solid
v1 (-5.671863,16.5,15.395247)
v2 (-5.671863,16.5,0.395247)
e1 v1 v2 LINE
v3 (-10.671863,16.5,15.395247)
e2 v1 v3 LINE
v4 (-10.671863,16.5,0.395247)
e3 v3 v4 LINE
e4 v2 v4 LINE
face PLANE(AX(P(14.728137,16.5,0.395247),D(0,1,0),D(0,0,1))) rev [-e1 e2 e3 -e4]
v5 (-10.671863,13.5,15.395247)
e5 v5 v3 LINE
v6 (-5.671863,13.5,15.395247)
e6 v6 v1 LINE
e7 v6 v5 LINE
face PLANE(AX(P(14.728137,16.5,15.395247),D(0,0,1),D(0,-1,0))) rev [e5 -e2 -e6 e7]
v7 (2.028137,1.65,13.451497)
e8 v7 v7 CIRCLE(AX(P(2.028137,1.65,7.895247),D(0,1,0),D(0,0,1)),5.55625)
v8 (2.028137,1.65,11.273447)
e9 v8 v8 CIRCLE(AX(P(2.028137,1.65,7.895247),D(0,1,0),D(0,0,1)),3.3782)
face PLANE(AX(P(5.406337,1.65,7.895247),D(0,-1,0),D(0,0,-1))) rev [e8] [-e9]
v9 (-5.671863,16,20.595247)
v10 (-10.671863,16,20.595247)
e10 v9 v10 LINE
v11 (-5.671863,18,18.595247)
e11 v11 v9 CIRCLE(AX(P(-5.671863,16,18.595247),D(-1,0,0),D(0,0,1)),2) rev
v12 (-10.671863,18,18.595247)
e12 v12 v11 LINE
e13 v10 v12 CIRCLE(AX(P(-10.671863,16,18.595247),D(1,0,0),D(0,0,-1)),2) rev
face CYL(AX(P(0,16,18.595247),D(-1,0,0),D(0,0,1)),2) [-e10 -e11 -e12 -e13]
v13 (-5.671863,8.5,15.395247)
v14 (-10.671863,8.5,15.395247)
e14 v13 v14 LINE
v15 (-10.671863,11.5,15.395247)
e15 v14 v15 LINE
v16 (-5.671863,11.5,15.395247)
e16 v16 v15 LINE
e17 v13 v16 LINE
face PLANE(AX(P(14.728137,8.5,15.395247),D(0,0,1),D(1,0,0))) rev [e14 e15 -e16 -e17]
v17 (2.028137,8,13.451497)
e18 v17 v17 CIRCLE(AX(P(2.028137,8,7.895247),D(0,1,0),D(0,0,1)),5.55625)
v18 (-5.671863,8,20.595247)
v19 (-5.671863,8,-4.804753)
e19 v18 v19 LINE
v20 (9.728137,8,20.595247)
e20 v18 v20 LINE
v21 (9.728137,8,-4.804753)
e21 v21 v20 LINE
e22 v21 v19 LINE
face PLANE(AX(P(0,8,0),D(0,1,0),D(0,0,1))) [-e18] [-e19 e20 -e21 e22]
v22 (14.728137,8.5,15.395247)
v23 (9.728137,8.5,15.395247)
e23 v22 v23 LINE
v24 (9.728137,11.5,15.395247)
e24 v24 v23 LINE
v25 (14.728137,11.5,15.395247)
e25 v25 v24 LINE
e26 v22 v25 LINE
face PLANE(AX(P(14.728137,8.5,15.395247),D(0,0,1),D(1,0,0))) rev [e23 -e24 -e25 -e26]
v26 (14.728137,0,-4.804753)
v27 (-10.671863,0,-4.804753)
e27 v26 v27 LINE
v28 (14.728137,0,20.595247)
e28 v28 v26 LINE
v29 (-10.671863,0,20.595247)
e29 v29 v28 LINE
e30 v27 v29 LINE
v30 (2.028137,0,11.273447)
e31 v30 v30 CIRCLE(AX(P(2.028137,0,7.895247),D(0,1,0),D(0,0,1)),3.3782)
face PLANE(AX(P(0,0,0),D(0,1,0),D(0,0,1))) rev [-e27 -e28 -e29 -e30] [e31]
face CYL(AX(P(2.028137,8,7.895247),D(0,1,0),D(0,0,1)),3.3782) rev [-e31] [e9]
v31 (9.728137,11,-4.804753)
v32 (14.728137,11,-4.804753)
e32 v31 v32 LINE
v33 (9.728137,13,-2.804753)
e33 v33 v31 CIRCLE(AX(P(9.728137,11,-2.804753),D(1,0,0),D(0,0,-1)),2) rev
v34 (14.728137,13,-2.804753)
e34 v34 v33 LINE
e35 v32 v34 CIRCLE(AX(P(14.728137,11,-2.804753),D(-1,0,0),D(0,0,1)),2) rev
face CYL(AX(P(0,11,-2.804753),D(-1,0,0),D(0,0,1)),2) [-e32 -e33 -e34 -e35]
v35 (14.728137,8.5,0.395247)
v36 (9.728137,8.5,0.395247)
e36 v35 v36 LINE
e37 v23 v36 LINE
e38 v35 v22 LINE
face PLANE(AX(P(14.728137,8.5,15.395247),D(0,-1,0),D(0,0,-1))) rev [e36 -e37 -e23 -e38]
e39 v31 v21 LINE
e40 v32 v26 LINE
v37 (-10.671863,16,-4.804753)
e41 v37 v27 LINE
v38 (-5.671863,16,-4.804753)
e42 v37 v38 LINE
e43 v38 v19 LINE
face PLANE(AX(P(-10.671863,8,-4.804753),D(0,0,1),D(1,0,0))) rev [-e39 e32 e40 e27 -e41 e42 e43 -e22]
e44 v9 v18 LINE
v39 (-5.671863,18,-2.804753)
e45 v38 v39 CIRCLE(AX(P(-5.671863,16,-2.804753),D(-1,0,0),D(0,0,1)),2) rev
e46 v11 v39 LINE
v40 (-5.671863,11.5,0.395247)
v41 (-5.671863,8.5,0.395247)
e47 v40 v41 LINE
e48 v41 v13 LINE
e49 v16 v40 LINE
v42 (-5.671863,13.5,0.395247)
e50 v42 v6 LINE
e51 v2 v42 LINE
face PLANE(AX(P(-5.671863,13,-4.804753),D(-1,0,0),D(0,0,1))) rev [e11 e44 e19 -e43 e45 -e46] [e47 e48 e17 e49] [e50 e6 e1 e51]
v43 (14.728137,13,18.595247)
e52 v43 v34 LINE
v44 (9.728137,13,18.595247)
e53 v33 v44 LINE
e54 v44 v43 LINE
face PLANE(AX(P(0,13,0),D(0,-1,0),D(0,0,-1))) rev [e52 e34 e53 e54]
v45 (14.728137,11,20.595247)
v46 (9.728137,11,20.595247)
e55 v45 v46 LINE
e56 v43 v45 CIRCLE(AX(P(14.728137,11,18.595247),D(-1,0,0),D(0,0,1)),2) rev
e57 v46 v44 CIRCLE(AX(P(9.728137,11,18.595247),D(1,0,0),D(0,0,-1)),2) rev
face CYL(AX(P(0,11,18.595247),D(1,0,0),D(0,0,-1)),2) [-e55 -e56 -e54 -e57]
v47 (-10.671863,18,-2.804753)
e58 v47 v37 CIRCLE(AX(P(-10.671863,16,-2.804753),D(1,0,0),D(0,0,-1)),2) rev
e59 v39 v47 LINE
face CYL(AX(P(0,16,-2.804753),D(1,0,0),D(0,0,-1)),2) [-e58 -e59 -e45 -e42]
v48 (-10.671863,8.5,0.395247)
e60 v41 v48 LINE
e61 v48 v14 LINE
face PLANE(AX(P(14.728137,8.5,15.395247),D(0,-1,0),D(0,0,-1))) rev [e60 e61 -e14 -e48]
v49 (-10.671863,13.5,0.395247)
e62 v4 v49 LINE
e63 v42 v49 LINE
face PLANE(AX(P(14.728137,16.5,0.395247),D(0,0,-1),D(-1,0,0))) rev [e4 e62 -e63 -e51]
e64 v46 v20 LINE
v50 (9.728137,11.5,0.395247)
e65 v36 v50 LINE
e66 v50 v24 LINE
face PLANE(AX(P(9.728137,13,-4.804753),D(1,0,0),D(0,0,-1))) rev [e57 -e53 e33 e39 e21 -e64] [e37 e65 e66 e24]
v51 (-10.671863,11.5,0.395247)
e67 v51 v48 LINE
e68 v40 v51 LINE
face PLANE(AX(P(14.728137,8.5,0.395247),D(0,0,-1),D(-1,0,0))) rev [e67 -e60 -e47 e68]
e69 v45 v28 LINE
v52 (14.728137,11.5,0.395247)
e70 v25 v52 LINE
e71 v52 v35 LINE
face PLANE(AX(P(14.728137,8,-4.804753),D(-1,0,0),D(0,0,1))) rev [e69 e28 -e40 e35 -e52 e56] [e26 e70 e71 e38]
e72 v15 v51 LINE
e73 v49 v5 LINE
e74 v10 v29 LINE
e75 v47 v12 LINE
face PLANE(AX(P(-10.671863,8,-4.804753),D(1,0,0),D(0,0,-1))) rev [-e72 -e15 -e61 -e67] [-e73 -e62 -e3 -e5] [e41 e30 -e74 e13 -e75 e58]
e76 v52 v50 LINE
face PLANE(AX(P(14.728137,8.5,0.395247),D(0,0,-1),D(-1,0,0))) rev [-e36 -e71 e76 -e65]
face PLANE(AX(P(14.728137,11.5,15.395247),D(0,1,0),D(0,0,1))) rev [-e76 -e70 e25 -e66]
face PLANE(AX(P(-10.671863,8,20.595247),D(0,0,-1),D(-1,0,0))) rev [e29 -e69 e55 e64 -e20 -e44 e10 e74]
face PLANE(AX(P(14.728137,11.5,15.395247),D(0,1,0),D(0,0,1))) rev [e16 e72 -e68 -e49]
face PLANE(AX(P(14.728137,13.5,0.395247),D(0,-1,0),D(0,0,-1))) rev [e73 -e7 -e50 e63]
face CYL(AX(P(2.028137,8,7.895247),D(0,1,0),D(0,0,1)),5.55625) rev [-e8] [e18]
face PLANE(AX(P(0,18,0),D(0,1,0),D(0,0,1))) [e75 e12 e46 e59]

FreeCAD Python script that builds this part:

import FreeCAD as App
import Part
import Sketcher


def edges_at(feature, points):
    """Names of the edges that pass closest to the given points."""
    edges = feature.Shape.Edges
    near = lambda p: min(range(len(edges)), key=lambda i: edges[i].distToShape(Part.Vertex(*p))[0])
    return sorted({f"Edge{near(p) + 1}" for p in points})


def add_polygon(sketch, points):
    """Adds a closed chain of lines whose ends are joined by coincident constraints."""
    first, n = sketch.GeometryCount, len(points)
    for a, b in zip(points, points[1:] + points[:1]):
        sketch.addGeometry(Part.LineSegment(App.Vector(*a, 0), App.Vector(*b, 0)), False)
    for i in range(n):
        sketch.addConstraint(Sketcher.Constraint("Coincident", first + i, 2, first + (i + 1) % n, 1))

doc = App.newDocument("Part")
body = doc.addObject("PartDesign::Body", "Body")

sketch1 = body.newObject("Sketcher::SketchObject", "Sketch")
sketch1.AttachmentSupport = (doc.getObject("XZ_Plane"), [""])
sketch1.MapMode = "FlatFace"
add_polygon(sketch1, [(-11, -5), (-11, 21), (15, 21), (15, -5)])
sketch1.addConstraint(Sketcher.Constraint("Vertical", 0))
sketch1.addConstraint(Sketcher.Constraint("Horizontal", 1))
sketch1.addConstraint(Sketcher.Constraint("Vertical", 2))
sketch1.addConstraint(Sketcher.Constraint("Horizontal", 3))
sketch1.addConstraint(Sketcher.Constraint("Equal", 3, 0))
sketch1.addConstraint(Sketcher.Constraint("DistanceX", 1, 1, 1, 2, 25.4))
sketch1.addConstraint(Sketcher.Constraint("DistanceX", 0, 2, -1, 1, 10.671863))
sketch1.addConstraint(Sketcher.Constraint("DistanceY", -1, 1, 0, 2, 20.595247))
pad1 = body.newObject("PartDesign::Pad", "Pad")
pad1.Profile = sketch1
pad1.Length = 8
pad1.Reversed = True

sketch2 = body.newObject("Sketcher::SketchObject", "Sketch001")
sketch2.AttachmentSupport = (doc.getObject("XZ_Plane"), [""])
sketch2.MapMode = "FlatFace"
sketch2.AttachmentOffset = App.Placement(App.Vector(0, 0, -8), App.Rotation())
add_polygon(sketch2, [(-10.7, -4.8), (-10.7, 20.6), (-5.7, 20.6), (-5.7, -4.8)])
add_polygon(sketch2, [(9.7, -4.8), (9.7, 20.6), (14.7, 20.6), (14.7, -4.8)])
sketch2.addConstraint(Sketcher.Constraint("Vertical", 0))
sketch2.addConstraint(Sketcher.Constraint("Horizontal", 1))
sketch2.addConstraint(Sketcher.Constraint("Vertical", 2))
sketch2.addConstraint(Sketcher.Constraint("Horizontal", 3))
sketch2.addConstraint(Sketcher.Constraint("Vertical", 4))
sketch2.addConstraint(Sketcher.Constraint("Horizontal", 5))
sketch2.addConstraint(Sketcher.Constraint("Vertical", 6))
sketch2.addConstraint(Sketcher.Constraint("Horizontal", 7))
sketch2.addConstraint(Sketcher.Constraint("Horizontal", 1, 2, 4, 2))
sketch2.addConstraint(Sketcher.Constraint("Horizontal", 3, 2, 6, 2))
sketch2.addConstraint(Sketcher.Constraint("Equal", 3, 5))
sketch2.addConstraint(Sketcher.Constraint("DistanceX", 1, 1, 1, 2, 5.0))
sketch2.addConstraint(Sketcher.Constraint("DistanceY", 0, 1, 0, 2, 25.4))
sketch2.addConstraint(Sketcher.Constraint("DistanceX", 1, 2, 4, 2, 15.4))
sketch2.addConstraint(Sketcher.Constraint("DistanceX", 0, 2, -1, 1, 10.671863))
sketch2.addConstraint(Sketcher.Constraint("DistanceY", -1, 1, 0, 2, 20.595247))
pad2 = body.newObject("PartDesign::Pad", "Pad001")
pad2.Profile = sketch2
pad2.Length = 5
pad2.Reversed = True

sketch3 = body.newObject("Sketcher::SketchObject", "Sketch002")
sketch3.AttachmentSupport = (doc.getObject("XZ_Plane"), [""])
sketch3.MapMode = "FlatFace"
sketch3.AttachmentOffset = App.Placement(App.Vector(0, 0, -8), App.Rotation())
sketch3.addGeometry(Part.Circle(App.Vector(22.3, 3.9, 0), App.Vector(0, 0, 1), 3.4), False)
sketch3.addGeometry(Part.Circle(App.Vector(2, 7.9, 0), App.Vector(0, 0, 1), 3.4), False)
sketch3.addConstraint(Sketcher.Constraint("Equal", 0, 1))
sketch3.addConstraint(Sketcher.Constraint("Diameter", 0, 6.7564))
sketch3.addConstraint(Sketcher.Constraint("DistanceX", -1, 1, 0, 3, 22.313461))
sketch3.addConstraint(Sketcher.Constraint("DistanceY", -1, 1, 0, 3, 3.943713))
sketch3.addConstraint(Sketcher.Constraint("DistanceX", -1, 1, 1, 3, 2.028137))
sketch3.addConstraint(Sketcher.Constraint("DistanceY", -1, 1, 1, 3, 7.895247))
doc.recompute()
hole = body.newObject("PartDesign::Hole", "Hole")
hole.Profile = sketch3
hole.ThreadType = "None"
hole.Diameter = 6.7564
hole.DepthType = "ThroughAll"
hole.HoleCutType = "Counterbore"
hole.HoleCutDiameter = 11.1125
hole.HoleCutDepth = 6.35
hole.Reversed = True

sketch4 = body.newObject("Sketcher::SketchObject", "Sketch003")
sketch4.AttachmentSupport = (doc.getObject("YZ_Plane"), [""])
sketch4.MapMode = "FlatFace"
sketch4.AttachmentOffset = App.Placement(App.Vector(0, 0, -10.671863), App.Rotation())
add_polygon(sketch4, [(11.5, 0.4), (8.5, 0.4), (8.5, 15.4), (11.5, 15.4)])
sketch4.addConstraint(Sketcher.Constraint("Horizontal", 0))
sketch4.addConstraint(Sketcher.Constraint("Vertical", 1))
sketch4.addConstraint(Sketcher.Constraint("Horizontal", 2))
sketch4.addConstraint(Sketcher.Constraint("Vertical", 3))
sketch4.addConstraint(Sketcher.Constraint("DistanceX", 0, 2, 0, 1, 3.0))
sketch4.addConstraint(Sketcher.Constraint("DistanceY", 1, 1, 1, 2, 15.0))
sketch4.addConstraint(Sketcher.Constraint("DistanceX", -1, 1, 0, 2, 8.5))
sketch4.addConstraint(Sketcher.Constraint("DistanceY", -1, 1, 0, 2, 0.395247))
pocket1 = body.newObject("PartDesign::Pocket", "Pocket")
pocket1.Profile = sketch4
pocket1.Type = "ThroughAll"
pocket1.Reversed = True

sketch5 = body.newObject("Sketcher::SketchObject", "Sketch004")
sketch5.AttachmentSupport = (doc.getObject("XZ_Plane"), [""])
sketch5.MapMode = "FlatFace"
sketch5.AttachmentOffset = App.Placement(App.Vector(0, 0, -13), App.Rotation())
add_polygon(sketch5, [(-10.7, -4.8), (-10.7, 20.6), (-5.7, 20.6), (-5.7, -4.8)])
sketch5.addConstraint(Sketcher.Constraint("Vertical", 0))
sketch5.addConstraint(Sketcher.Constraint("Horizontal", 1))
sketch5.addConstraint(Sketcher.Constraint("Vertical", 2))
sketch5.addConstraint(Sketcher.Constraint("Horizontal", 3))
sketch5.addConstraint(Sketcher.Constraint("DistanceX", 1, 1, 1, 2, 5.0))
sketch5.addConstraint(Sketcher.Constraint("DistanceY", 0, 1, 0, 2, 25.4))
sketch5.addConstraint(Sketcher.Constraint("DistanceX", 0, 2, -1, 1, 10.671863))
sketch5.addConstraint(Sketcher.Constraint("DistanceY", -1, 1, 0, 2, 20.595247))
pad3 = body.newObject("PartDesign::Pad", "Pad002")
pad3.Profile = sketch5
pad3.Length = 5
pad3.Reversed = True

sketch6 = body.newObject("Sketcher::SketchObject", "Sketch005")
sketch6.AttachmentSupport = (doc.getObject("YZ_Plane"), [""])
sketch6.MapMode = "FlatFace"
sketch6.AttachmentOffset = App.Placement(App.Vector(0, 0, -10.671863), App.Rotation())
add_polygon(sketch6, [(16.5, 0.4), (13.5, 0.4), (13.5, 15.4), (16.5, 15.4)])
sketch6.addConstraint(Sketcher.Constraint("Horizontal", 0))
sketch6.addConstraint(Sketcher.Constraint("Vertical", 1))
sketch6.addConstraint(Sketcher.Constraint("Horizontal", 2))
sketch6.addConstraint(Sketcher.Constraint("Vertical", 3))
sketch6.addConstraint(Sketcher.Constraint("DistanceX", 0, 2, 0, 1, 3.0))
sketch6.addConstraint(Sketcher.Constraint("DistanceY", 1, 1, 1, 2, 15.0))
sketch6.addConstraint(Sketcher.Constraint("DistanceX", -1, 1, 0, 2, 13.5))
sketch6.addConstraint(Sketcher.Constraint("DistanceY", -1, 1, 0, 2, 0.395247))
pocket2 = body.newObject("PartDesign::Pocket", "Pocket001")
pocket2.Profile = sketch6
pocket2.Type = "ThroughAll"
pocket2.Reversed = True
doc.recompute()

fillet = body.newObject("PartDesign::Fillet", "Fillet")
fillet.Base = (pocket2, edges_at(pocket2, [
    (12.228, 13, -4.805),
    (12.228, 13, 20.595),
    (-8.172, 18, -4.805),
    (-8.172, 18, 20.595),
]))
fillet.Radius = 2

doc.recompute()
